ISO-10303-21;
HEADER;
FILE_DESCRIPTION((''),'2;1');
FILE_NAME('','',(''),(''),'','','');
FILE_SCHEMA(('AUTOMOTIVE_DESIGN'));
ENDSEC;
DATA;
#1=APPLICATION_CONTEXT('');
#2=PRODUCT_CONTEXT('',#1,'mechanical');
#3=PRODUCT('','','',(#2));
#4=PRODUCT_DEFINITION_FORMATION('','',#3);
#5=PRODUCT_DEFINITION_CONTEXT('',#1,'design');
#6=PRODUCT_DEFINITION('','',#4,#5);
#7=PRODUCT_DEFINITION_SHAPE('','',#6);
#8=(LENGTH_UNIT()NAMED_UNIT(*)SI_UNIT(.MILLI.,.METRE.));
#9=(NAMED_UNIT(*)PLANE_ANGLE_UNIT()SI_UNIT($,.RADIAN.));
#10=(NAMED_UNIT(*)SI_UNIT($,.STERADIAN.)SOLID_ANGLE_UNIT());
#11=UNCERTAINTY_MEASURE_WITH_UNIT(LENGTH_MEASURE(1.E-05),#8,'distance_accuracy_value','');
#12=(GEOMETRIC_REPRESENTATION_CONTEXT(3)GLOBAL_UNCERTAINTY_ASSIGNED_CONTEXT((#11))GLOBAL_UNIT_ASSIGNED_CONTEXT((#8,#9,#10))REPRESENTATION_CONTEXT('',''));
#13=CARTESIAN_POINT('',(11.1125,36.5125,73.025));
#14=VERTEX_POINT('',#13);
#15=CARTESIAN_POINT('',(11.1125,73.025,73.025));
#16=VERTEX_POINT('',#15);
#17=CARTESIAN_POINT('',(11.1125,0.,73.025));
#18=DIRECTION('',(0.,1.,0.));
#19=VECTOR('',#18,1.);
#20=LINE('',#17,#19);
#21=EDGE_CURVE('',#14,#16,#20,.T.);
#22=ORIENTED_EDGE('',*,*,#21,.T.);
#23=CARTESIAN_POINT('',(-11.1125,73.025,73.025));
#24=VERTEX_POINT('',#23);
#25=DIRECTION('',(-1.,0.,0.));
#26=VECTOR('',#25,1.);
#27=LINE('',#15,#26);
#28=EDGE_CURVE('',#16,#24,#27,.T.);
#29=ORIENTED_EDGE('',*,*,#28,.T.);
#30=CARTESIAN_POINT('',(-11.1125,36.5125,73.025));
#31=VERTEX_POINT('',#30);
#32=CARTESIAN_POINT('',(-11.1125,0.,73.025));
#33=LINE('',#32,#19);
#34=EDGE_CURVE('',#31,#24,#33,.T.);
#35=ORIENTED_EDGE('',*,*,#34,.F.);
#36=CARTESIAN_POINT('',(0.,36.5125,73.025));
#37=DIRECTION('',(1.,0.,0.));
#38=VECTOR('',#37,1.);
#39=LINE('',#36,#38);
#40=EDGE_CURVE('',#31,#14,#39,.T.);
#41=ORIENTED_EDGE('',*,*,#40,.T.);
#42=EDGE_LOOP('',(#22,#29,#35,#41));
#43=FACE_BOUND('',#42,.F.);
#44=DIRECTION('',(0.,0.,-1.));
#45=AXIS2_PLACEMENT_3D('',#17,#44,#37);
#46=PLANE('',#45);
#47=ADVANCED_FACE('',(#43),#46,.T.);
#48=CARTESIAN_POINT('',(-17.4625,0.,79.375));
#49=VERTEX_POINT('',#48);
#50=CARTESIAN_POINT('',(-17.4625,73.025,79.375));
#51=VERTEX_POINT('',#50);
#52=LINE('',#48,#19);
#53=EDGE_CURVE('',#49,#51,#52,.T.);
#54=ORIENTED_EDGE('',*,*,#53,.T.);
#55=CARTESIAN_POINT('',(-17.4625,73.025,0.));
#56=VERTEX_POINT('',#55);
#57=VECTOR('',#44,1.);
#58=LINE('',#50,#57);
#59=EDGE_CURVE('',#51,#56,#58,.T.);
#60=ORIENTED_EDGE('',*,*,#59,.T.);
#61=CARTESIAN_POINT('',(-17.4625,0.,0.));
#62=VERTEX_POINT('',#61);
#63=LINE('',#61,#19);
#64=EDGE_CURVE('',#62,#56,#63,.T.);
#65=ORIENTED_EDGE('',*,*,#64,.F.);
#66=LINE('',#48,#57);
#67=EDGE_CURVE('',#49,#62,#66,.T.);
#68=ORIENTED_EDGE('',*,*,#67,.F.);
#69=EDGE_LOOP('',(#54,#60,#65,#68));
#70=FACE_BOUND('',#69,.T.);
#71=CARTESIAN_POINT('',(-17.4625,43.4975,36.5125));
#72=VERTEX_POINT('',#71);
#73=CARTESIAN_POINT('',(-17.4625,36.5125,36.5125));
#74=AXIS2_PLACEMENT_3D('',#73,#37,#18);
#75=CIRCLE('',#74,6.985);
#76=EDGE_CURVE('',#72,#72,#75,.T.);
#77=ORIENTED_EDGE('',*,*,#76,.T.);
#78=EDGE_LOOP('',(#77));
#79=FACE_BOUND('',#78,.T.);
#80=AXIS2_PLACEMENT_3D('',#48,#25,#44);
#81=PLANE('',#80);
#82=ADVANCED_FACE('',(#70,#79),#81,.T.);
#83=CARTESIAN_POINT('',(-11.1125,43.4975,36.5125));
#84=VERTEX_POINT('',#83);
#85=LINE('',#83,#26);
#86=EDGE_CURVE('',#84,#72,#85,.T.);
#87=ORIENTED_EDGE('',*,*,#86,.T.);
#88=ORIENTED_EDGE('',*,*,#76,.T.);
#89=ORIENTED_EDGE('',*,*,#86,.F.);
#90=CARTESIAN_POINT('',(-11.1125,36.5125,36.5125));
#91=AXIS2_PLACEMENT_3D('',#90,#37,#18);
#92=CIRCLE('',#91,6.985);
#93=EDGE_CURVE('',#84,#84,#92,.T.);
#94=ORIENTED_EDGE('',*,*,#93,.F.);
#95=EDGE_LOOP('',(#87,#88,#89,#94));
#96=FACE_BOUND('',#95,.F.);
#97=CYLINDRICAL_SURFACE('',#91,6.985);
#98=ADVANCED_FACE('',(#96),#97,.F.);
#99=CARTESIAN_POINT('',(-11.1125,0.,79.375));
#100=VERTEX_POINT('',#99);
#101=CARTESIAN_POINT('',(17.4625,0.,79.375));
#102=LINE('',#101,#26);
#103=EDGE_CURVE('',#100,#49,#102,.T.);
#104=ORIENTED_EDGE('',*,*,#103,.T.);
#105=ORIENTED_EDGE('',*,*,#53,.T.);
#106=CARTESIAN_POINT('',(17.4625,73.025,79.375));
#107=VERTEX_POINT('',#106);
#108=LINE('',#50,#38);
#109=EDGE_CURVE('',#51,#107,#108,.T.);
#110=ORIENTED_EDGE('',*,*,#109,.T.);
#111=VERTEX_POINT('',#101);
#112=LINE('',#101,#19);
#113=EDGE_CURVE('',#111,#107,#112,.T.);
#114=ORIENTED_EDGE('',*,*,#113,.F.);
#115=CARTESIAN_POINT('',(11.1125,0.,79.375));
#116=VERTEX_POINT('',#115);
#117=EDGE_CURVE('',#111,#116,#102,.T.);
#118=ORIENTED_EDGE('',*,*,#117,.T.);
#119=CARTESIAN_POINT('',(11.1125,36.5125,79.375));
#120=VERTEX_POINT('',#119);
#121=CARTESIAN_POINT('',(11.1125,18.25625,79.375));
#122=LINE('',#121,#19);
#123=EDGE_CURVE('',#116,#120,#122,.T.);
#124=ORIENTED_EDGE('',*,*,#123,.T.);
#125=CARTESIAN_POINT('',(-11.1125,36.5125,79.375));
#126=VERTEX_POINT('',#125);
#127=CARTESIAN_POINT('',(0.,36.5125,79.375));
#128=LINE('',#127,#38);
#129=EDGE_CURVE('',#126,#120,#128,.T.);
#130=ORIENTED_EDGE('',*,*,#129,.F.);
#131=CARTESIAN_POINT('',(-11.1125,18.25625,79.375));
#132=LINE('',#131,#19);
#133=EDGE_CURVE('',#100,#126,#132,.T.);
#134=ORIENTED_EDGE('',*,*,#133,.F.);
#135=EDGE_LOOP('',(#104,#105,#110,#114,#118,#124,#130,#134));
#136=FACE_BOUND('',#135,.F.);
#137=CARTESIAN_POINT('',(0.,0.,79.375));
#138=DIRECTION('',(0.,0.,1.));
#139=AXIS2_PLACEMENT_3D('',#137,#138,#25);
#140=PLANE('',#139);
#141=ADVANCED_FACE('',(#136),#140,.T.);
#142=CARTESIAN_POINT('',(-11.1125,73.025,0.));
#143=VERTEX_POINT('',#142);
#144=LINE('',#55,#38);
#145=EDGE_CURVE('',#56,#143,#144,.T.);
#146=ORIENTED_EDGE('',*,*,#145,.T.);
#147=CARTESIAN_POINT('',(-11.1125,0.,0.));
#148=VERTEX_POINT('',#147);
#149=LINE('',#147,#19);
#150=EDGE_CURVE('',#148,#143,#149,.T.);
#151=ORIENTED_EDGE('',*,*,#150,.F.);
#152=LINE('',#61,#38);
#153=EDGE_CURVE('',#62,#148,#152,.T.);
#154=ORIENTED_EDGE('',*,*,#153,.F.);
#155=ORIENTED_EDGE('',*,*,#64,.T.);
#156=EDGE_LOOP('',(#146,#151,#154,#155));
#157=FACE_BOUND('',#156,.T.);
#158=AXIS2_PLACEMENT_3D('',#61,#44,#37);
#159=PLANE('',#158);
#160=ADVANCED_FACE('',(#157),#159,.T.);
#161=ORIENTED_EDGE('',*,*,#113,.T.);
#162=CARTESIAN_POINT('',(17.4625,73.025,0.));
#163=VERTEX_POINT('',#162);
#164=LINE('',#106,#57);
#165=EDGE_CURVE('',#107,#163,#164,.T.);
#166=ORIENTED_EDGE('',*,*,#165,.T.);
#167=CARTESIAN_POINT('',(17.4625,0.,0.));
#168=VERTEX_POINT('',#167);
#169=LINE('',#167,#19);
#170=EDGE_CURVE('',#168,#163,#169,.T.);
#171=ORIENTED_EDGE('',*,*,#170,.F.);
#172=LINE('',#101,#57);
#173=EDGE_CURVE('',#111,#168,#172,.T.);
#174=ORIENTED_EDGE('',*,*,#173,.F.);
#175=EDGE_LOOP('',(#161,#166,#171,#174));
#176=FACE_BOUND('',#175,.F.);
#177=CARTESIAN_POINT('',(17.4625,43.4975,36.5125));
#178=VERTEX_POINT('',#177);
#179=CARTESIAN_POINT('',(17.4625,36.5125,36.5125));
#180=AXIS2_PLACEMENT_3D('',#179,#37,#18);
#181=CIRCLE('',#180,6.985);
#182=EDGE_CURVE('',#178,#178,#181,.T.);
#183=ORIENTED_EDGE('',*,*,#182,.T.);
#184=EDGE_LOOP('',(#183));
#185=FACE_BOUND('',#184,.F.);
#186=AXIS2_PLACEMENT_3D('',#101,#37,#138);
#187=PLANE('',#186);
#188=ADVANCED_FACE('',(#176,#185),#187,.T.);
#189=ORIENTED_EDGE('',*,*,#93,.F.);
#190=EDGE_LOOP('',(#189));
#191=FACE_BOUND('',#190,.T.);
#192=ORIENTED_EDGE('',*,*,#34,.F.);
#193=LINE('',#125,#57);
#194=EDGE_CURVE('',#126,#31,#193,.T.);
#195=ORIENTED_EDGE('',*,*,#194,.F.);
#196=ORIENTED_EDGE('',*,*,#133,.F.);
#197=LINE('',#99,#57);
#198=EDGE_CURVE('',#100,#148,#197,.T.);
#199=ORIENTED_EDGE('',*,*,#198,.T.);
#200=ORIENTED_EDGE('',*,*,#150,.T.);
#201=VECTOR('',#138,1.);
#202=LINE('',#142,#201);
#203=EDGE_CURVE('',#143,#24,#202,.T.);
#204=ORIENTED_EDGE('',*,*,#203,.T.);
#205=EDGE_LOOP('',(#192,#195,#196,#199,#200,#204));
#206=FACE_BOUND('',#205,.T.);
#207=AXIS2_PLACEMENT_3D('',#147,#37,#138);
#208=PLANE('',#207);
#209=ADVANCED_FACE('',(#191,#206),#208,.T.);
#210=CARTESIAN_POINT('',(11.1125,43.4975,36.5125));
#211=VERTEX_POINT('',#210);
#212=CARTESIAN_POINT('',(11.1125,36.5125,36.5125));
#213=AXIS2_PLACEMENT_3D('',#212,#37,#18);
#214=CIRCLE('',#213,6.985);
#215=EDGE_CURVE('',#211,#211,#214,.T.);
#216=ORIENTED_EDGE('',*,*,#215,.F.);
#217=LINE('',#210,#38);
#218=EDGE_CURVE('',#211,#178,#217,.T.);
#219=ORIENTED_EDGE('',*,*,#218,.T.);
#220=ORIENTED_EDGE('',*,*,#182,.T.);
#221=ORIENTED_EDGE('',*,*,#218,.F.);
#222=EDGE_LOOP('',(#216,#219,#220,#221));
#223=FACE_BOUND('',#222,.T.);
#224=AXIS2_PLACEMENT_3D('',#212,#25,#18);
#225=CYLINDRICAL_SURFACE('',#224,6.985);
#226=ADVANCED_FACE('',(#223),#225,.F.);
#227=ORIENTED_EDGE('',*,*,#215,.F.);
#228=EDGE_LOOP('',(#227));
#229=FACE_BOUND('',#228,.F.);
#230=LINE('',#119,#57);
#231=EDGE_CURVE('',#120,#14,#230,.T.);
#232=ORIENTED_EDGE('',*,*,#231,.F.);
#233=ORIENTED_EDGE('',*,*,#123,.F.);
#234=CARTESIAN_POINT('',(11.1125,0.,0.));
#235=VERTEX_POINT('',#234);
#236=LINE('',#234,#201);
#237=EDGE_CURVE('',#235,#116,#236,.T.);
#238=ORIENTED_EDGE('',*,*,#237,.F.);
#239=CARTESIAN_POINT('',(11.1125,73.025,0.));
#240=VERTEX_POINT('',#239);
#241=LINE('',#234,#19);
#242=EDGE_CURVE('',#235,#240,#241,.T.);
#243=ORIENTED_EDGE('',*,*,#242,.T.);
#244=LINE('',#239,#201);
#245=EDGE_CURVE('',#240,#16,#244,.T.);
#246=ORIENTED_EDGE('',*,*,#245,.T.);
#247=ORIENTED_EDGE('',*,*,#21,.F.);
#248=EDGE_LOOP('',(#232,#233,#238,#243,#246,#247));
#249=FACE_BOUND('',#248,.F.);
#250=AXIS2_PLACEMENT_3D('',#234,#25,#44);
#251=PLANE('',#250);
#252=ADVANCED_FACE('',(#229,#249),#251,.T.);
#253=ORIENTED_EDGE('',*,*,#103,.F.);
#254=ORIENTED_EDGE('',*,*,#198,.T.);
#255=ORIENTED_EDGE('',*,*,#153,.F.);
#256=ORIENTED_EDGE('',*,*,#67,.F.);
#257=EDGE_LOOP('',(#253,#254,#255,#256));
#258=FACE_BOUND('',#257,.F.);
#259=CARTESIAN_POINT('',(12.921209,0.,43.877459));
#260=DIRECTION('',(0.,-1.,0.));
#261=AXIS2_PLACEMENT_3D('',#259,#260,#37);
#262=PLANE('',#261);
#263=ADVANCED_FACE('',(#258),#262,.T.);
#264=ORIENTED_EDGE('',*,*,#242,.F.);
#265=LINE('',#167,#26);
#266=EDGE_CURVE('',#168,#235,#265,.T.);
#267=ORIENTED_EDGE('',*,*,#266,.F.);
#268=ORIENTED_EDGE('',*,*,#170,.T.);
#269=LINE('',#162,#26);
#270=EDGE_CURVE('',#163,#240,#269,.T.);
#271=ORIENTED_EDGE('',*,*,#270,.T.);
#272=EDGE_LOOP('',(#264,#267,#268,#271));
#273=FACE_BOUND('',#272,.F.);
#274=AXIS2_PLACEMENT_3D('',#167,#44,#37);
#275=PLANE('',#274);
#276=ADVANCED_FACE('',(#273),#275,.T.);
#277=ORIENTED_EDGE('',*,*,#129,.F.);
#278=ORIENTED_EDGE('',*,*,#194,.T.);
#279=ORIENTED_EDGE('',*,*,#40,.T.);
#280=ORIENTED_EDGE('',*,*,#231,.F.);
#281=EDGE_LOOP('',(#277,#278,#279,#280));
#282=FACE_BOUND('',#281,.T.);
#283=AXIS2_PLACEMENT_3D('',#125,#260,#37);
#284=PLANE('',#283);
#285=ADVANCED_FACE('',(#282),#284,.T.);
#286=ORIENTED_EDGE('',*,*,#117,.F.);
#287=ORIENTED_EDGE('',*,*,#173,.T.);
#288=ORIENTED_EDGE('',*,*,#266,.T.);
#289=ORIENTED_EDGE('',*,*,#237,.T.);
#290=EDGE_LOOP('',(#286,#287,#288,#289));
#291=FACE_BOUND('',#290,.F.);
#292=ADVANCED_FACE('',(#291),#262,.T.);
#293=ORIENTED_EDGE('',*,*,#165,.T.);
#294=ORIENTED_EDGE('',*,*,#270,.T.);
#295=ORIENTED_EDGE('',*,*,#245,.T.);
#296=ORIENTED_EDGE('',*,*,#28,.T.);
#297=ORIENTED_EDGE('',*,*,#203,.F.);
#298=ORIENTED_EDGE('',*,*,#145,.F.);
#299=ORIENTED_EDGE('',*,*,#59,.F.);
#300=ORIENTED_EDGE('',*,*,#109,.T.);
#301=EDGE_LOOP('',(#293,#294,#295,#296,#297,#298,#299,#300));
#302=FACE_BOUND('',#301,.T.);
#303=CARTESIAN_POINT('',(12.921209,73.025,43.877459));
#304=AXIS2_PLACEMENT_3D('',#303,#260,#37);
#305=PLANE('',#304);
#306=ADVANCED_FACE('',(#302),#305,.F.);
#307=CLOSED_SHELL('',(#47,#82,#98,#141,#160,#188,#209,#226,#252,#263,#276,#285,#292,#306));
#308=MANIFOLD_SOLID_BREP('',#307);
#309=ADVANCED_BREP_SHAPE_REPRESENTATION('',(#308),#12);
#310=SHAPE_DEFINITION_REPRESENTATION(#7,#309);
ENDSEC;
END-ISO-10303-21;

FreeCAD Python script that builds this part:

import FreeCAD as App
import Part
import Sketcher
from FreeCAD import Vector
Q = App.Units.Quantity

doc = App.newDocument("Part")
body = doc.addObject("PartDesign::Body", "Body")

# Sketch on XZ plane
sketch1 = body.newObject("Sketcher::SketchObject", "Sketch")
sketch1.AttachmentSupport = (doc.getObject("XZ_Plane"), [""])
sketch1.MapMode = "FlatFace"
sketch1.addGeometry([
    Part.LineSegment(Vector(-17, 0, 0), Vector(-11, 0, 0)),  # 0
    Part.LineSegment(Vector(-11, 0, 0), Vector(-11, 73, 0)),  # 1
    Part.LineSegment(Vector(-11, 73, 0), Vector(0, 73, 0)),  # 2
    Part.LineSegment(Vector(0, 73, 0), Vector(0, 79, 0)),  # 3
    Part.LineSegment(Vector(0, 79, 0), Vector(-17, 79, 0)),  # 4
    Part.LineSegment(Vector(-17, 79, 0), Vector(-17, 0, 0)),  # 5
], False)
sketch1.addConstraint([
    Sketcher.Constraint("Coincident", 0, 2, 1, 1),
    Sketcher.Constraint("Coincident", 1, 2, 2, 1),
    Sketcher.Constraint("Coincident", 2, 2, 3, 1),
    Sketcher.Constraint("Coincident", 3, 2, 4, 1),
    Sketcher.Constraint("Coincident", 4, 2, 5, 1),
    Sketcher.Constraint("Coincident", 5, 2, 0, 1),
    Sketcher.Constraint("Horizontal", 0),
    Sketcher.Constraint("Vertical", 1),
    Sketcher.Constraint("Horizontal", 2),
    Sketcher.Constraint("Vertical", 3),
    Sketcher.Constraint("Horizontal", 4),
    Sketcher.Constraint("Vertical", 5),
    Sketcher.Constraint("PointOnObject", 0, 2, -1),
    Sketcher.Constraint("PointOnObject", 2, 2, -2),
    Sketcher.Constraint("Equal", 0, 3),
    Sketcher.Constraint("DistanceX", 0, 1, 0, 2, Q("0.25 in")),
    Sketcher.Constraint("DistanceX", 2, 1, 2, 2, Q("0.4375 in")),
    Sketcher.Constraint("DistanceY", 1, 1, 1, 2, Q("2.875 in")),
])
pad1 = body.newObject("PartDesign::Pad", "Pad")
pad1.Profile = sketch1
pad1.Length = Q("2.875 in")
pad1.Reversed = True

# Sketch on YZ plane
sketch2 = body.newObject("Sketcher::SketchObject", "Sketch001")
sketch2.AttachmentSupport = (doc.getObject("YZ_Plane"), [""])
sketch2.MapMode = "FlatFace"
sketch2.AttachmentOffset = App.Placement(Vector(0, 0, -0.4375 * 25.4), App.Rotation())
sketch2.addGeometry(Part.Circle(Vector(37, 37, 0), Vector(0, 0, 1), 7), False)
sketch2.addConstraint([
    Sketcher.Constraint("Diameter", 0, Q("0.55 in")),
    Sketcher.Constraint("DistanceX", -1, 1, 0, 3, Q("1.4375 in")),
    Sketcher.Constraint("DistanceY", -1, 1, 0, 3, Q("1.4375 in")),
])
pocket1 = body.newObject("PartDesign::Pocket", "Pocket")
pocket1.Profile = sketch2
pocket1.Length = Q("1 in")
body2 = doc.addObject("PartDesign::Body", "Body001")
doc.recompute()

body2.BaseFeature = body
doc.recompute()

mirroring = doc.addObject("Part::Mirroring", "Mirroring")
mirroring.Source = body
mirroring.Base = Vector(0, 0, 0)
mirroring.Normal = Vector(1, 0, 0)
body3 = doc.addObject("PartDesign::Body", "Body002")
body3.BaseFeature = mirroring
boolean = body2.newObject("PartDesign::Boolean", "Boolean")
boolean.Type = "Fuse"
boolean.addObjects([body3])
doc.recompute()

# Sketch on XY plane
sketch3 = body2.newObject("Sketcher::SketchObject", "Sketch002")
sketch3.AttachmentSupport = (doc.getObject("XY_Plane001"), [""])
sketch3.MapMode = "FlatFace"
sketch3.AttachmentOffset = App.Placement(Vector(0, 0, 3.125 * 25.4), App.Rotation())
sketch3.addGeometry([
    Part.LineSegment(Vector(-11, 37, 0), Vector(-11, 0, 0)),
    Part.LineSegment(Vector(-11, 0, 0), Vector(11, 0, 0)),
    Part.LineSegment(Vector(11, 0, 0), Vector(11, 37, 0)),
    Part.LineSegment(Vector(11, 37, 0), Vector(-11, 37, 0)),
], False)
sketch3.addConstraint([
    Sketcher.Constraint("Coincident", 0, 2, 1, 1),
    Sketcher.Constraint("Coincident", 1, 2, 2, 1),
    Sketcher.Constraint("Coincident", 2, 2, 3, 1),
    Sketcher.Constraint("Coincident", 3, 2, 0, 1),
    Sketcher.Constraint("Vertical", 0),
    Sketcher.Constraint("Horizontal", 1),
    Sketcher.Constraint("Vertical", 2),
    Sketcher.Constraint("Horizontal", 3),
    Sketcher.Constraint("Symmetric", 0, 2, 1, 2, -1, 1),
    Sketcher.Constraint("DistanceX", 1, 1, 1, 2, Q("0.875 in")),
    Sketcher.Constraint("DistanceY", 0, 2, 0, 1, Q("1.4375 in")),
])
pocket2 = body2.newObject("PartDesign::Pocket", "Pocket001")
pocket2.Profile = sketch3
pocket2.Length = Q("1 in")
mirroring.Visibility = False

doc.recompute()
